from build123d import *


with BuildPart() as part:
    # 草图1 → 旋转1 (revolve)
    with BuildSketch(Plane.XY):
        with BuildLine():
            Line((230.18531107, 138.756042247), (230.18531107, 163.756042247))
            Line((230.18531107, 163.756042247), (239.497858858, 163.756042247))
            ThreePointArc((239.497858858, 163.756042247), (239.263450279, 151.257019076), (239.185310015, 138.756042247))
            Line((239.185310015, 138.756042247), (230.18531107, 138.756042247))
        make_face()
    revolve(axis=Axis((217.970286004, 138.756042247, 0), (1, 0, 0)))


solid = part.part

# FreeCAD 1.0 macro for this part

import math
import FreeCAD as App
import Part
import Sketcher

V = App.Vector
Q = App.Units.Quantity

doc = App.newDocument("Part")
body = doc.addObject("PartDesign::Body", "Body")

# Sketch on XY plane
sketch1 = body.newObject("Sketcher::SketchObject", "Sketch")
sketch1.AttachmentSupport = (doc.getObject("XY_Plane"), [""])
sketch1.MapMode = "FlatFace"
sketch1.addGeometry([
    Part.LineSegment(V(230, 164, 0), V(230, 139, 0)),
    Part.LineSegment(V(230, 139, 0), V(239, 139, 0)),
    Part.ArcOfCircle(Part.Circle(V(1239, 139, 0), V(0, 0, 1), 1000), math.radians(178.57), math.radians(180)),
    Part.LineSegment(V(239, 164, 0), V(230, 164, 0)),
], False)
sketch1.addGeometry(Part.LineSegment(V(230, 139, 0), V(1239, 139, 0)), True)  # axis
sketch1.addConstraint([
    Sketcher.Constraint("Coincident", 0, 2, 1, 1),
    Sketcher.Constraint("Coincident", 1, 2, 2, 2),
    Sketcher.Constraint("Coincident", 2, 1, 3, 1),
    Sketcher.Constraint("Coincident", 3, 2, 0, 1),
    Sketcher.Constraint("Vertical", 0),
    Sketcher.Constraint("Horizontal", 1),
    Sketcher.Constraint("Horizontal", 3),
    Sketcher.Constraint("Horizontal", 4),
    Sketcher.Constraint("Coincident", 4, 1, 0, 2),
    Sketcher.Constraint("Coincident", 4, 2, 2, 3),
    Sketcher.Constraint("DistanceX", 1, 1, 1, 2, Q("8.999999 mm")),
    Sketcher.Constraint("DistanceY", 0, 2, 0, 1, Q("25 mm")),
    Sketcher.Constraint("Radius", 2, Q("1000.000005 mm")),
    Sketcher.Constraint("DistanceX", -1, 1, 0, 2, Q("230.185311 mm")),
    Sketcher.Constraint("DistanceY", -1, 1, 2, 3, Q("138.756042 mm")),
])
revolution = body.newObject("PartDesign::Revolution", "Revolution")
revolution.Profile = sketch1
revolution.ReferenceAxis = (sketch1, ["Axis0"])
revolution.Angle = 360

doc.recompute()
